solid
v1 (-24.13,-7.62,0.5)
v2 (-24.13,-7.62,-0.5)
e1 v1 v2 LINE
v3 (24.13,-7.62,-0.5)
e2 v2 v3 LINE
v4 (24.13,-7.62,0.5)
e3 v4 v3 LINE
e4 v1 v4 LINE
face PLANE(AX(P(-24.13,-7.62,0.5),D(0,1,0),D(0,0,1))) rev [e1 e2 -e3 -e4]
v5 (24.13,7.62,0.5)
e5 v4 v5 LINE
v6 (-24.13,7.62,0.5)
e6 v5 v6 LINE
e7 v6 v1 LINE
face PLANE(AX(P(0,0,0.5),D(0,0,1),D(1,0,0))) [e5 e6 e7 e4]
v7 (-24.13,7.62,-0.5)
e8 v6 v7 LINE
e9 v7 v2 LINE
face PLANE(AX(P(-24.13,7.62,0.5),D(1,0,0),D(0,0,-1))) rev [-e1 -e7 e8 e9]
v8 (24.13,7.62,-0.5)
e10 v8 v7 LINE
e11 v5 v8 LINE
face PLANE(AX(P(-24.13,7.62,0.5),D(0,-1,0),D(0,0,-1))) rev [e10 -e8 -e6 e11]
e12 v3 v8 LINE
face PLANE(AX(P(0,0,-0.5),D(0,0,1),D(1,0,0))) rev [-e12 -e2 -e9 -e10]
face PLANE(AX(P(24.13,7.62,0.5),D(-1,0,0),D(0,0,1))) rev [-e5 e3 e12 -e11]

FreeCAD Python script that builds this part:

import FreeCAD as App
import Part
import Sketcher
Q = App.Units.Quantity

doc = App.newDocument("Part")
body = doc.addObject("PartDesign::Body", "Body")

# Sketch on XY plane
sketch1 = doc.addObject("Sketcher::SketchObject", "Sketch")
body.addObject(sketch1)
sketch1.AttachmentSupport = (doc.XY_Plane, [""])
sketch1.MapMode = "FlatFace"
sketch1.addGeometry([
    Part.LineSegment(App.Vector(-24, 8, 0), App.Vector(-24, -8, 0)),
    Part.LineSegment(App.Vector(-24, -8, 0), App.Vector(24, -8, 0)),
    Part.LineSegment(App.Vector(24, -8, 0), App.Vector(24, 8, 0)),
    Part.LineSegment(App.Vector(24, 8, 0), App.Vector(-24, 8, 0)),
], False)
sketch1.addConstraint([
    Sketcher.Constraint("Coincident", 0, 2, 1, 1),
    Sketcher.Constraint("Coincident", 1, 2, 2, 1),
    Sketcher.Constraint("Coincident", 2, 2, 3, 1),
    Sketcher.Constraint("Coincident", 3, 2, 0, 1),
    Sketcher.Constraint("Vertical", 0),
    Sketcher.Constraint("Horizontal", 1),
    Sketcher.Constraint("Vertical", 2),
    Sketcher.Constraint("Horizontal", 3),
    Sketcher.Constraint("Symmetric", 0, 2, 2, 2, -1, 1),
    Sketcher.Constraint("DistanceX", 1, 1, 1, 2, Q("1.9 in")),
    Sketcher.Constraint("DistanceY", 0, 2, 0, 1, Q("0.6 in")),
])
pad1 = doc.addObject("PartDesign::Pad", "Pad")
body.addObject(pad1)
pad1.Profile = sketch1
pad1.Length = 1
pad1.Midplane = True

doc.recompute()
